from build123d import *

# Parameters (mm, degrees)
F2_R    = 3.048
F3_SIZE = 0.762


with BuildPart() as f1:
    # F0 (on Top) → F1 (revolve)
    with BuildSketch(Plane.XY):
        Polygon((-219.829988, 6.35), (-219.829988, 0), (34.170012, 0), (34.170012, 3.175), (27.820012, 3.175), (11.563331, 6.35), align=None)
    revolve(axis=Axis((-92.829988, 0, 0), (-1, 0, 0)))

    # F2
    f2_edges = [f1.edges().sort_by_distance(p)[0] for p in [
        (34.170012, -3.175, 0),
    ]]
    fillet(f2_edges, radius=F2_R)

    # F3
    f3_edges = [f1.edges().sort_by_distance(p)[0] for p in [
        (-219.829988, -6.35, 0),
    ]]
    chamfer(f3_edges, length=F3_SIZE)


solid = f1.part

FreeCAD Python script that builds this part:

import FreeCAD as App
import Part
import Sketcher
from FreeCAD import Vector
Q = App.Units.Quantity


def edges_at(feature, points):
    """Names of the edges that pass closest to the given points."""
    edges = feature.Shape.Edges
    near = lambda p: min(range(len(edges)), key=lambda i: edges[i].distToShape(Part.Vertex(*p))[0])
    return sorted({f"Edge{near(p) + 1}" for p in points})


def add_polygon(sketch, points):
    """Adds a closed chain of lines whose ends are joined by coincident constraints."""
    first, n = sketch.GeometryCount, len(points)
    for a, b in zip(points, points[1:] + points[:1]):
        sketch.addGeometry(Part.LineSegment(App.Vector(*a, 0), App.Vector(*b, 0)), False)
    for i in range(n):
        sketch.addConstraint(Sketcher.Constraint("Coincident", first + i, 2, first + (i + 1) % n, 1))

doc = App.newDocument("Part")
params = doc.addObject("Spreadsheet::Sheet", "Params")
for row, (alias, value) in enumerate([
    ("sketch1_width", "10 in"),
    ("sketch1_width2", "0.25 in"),
    ("sketch1_height", "0.125 in"),
    ("revolution_angle", "360 deg"),
    ("fillet_radius", "0.12 in"),
    ("chamfer_size", "0.03 in"),
], start=1):
    params.set(f"A{row}", alias)
    params.set(f"B{row}", "=" + value)
    params.setAlias(f"B{row}", alias)

body = doc.addObject("PartDesign::Body", "Body")

sketch1 = body.newObject("Sketcher::SketchObject", "Sketch")
sketch1.AttachmentSupport = (doc.getObject("XY_Plane"), [""])
sketch1.MapMode = "FlatFace"
add_polygon(sketch1, [(-219.8, 6.3), (-219.8, 0), (34.2, 0), (34.2, 3.2), (27.8, 3.2), (11.6, 6.3)])
sketch1.addConstraint(Sketcher.Constraint("Vertical", 0))
sketch1.addConstraint(Sketcher.Constraint("Horizontal", 1))
sketch1.addConstraint(Sketcher.Constraint("Vertical", 2))
sketch1.addConstraint(Sketcher.Constraint("Horizontal", 3))
sketch1.addConstraint(Sketcher.Constraint("Horizontal", 5))
sketch1.addConstraint(Sketcher.Constraint("PointOnObject", 0, 2, -1))
sketch1.addConstraint(Sketcher.Constraint("Equal", 3, 0))
sketch1.addConstraint(Sketcher.Constraint("DistanceX", 1, 1, 1, 2, Q("10 in")))
sketch1.addConstraint(Sketcher.Constraint("DistanceX", 3, 2, 3, 1, Q("0.25 in")))
sketch1.addConstraint(Sketcher.Constraint("DistanceY", 2, 1, 2, 2, Q("0.125 in")))
sketch1.addConstraint(Sketcher.Constraint("DistanceX", 5, 2, 5, 1, Q("231.393319 mm")))
sketch1.addConstraint(Sketcher.Constraint("DistanceX", -1, 1, 3, 2, Q("27.820012 mm")))
sketch1.setExpression("Constraints[13]", "Params.sketch1_width")
sketch1.setExpression("Constraints[14]", "Params.sketch1_width2")
sketch1.setExpression("Constraints[15]", "Params.sketch1_height")
revolution = body.newObject("PartDesign::Revolution", "Revolution")
revolution.Profile = sketch1
revolution.ReferenceAxis = (sketch1, ["H_Axis"])
revolution.setExpression("Angle", "Params.revolution_angle")
doc.recompute()

fillet = body.newObject("PartDesign::Fillet", "Fillet")
fillet.Base = (revolution, edges_at(revolution, [(34.17, -3.175, 0)]))
fillet.setExpression("Radius", "Params.fillet_radius")
doc.recompute()

chamfer = body.newObject("PartDesign::Chamfer", "Chamfer")
chamfer.Base = (fillet, edges_at(fillet, [(-219.83, -6.35, 0)]))
chamfer.setExpression("Size", "Params.chamfer_size")

doc.recompute()
